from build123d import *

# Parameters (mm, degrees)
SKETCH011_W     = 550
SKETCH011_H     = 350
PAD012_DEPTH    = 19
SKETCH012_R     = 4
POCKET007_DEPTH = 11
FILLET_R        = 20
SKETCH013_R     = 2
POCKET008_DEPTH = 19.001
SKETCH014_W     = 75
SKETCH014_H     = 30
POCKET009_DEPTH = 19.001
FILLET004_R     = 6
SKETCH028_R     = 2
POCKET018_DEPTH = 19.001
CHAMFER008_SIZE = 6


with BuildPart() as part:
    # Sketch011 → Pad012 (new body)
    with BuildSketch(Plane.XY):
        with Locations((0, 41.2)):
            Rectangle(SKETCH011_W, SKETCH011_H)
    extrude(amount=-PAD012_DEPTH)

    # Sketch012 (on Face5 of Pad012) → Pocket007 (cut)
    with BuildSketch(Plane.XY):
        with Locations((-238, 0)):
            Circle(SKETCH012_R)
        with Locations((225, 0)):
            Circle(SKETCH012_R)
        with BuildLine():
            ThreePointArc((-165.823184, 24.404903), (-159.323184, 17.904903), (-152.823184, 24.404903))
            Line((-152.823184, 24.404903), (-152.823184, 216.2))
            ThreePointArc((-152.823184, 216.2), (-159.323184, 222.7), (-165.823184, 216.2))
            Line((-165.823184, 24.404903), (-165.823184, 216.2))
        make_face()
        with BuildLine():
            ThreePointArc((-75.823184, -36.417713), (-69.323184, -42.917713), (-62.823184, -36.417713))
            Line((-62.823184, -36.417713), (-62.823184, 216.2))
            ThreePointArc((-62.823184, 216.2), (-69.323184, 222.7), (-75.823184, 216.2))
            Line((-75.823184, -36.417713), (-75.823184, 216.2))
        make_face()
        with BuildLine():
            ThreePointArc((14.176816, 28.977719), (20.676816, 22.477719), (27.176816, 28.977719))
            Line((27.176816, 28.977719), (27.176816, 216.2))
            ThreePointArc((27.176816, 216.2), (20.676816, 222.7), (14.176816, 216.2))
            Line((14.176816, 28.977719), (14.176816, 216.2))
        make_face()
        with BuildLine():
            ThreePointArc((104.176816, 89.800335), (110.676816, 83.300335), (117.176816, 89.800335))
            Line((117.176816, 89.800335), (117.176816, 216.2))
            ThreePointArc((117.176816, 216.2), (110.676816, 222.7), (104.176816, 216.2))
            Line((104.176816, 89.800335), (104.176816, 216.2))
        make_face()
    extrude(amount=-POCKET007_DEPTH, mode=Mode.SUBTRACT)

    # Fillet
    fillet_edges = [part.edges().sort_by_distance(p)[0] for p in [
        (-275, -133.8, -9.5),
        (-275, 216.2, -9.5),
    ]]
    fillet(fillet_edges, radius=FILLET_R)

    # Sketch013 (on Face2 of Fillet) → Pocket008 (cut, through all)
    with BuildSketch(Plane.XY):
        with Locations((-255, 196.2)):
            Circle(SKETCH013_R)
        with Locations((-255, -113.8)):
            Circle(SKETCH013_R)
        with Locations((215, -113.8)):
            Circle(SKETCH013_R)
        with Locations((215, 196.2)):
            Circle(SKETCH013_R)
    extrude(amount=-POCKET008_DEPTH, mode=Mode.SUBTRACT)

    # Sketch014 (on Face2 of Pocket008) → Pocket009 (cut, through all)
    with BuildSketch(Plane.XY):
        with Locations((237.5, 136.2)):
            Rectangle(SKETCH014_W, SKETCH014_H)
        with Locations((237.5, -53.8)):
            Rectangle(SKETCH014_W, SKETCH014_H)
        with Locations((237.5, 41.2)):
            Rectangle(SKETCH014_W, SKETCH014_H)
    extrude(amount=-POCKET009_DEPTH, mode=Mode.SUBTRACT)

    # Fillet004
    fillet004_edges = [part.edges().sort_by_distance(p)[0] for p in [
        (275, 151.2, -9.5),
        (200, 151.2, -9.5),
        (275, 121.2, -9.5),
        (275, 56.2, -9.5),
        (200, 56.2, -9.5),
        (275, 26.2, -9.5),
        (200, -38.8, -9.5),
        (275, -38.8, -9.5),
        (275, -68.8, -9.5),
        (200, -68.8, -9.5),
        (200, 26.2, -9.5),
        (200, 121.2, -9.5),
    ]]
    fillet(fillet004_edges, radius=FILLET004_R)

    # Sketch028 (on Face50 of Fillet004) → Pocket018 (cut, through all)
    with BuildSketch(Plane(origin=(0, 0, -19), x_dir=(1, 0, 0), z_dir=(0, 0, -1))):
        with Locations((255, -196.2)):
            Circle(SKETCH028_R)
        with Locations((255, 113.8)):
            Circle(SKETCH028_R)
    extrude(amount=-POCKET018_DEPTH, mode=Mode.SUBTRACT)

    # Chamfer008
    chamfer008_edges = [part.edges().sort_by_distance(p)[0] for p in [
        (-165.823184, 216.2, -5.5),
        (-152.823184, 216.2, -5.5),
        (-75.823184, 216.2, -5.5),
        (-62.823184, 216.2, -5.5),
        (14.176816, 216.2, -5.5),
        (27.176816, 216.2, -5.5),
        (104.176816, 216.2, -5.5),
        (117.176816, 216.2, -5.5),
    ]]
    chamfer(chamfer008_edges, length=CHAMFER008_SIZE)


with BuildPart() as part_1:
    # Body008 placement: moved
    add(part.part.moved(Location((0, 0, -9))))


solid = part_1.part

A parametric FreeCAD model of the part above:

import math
import FreeCAD as App
import Part
import Sketcher
Q = App.Units.Quantity


def edges_at(feature, points):
    """Names of the edges that pass closest to the given points."""
    edges = feature.Shape.Edges
    near = lambda p: min(range(len(edges)), key=lambda i: edges[i].distToShape(Part.Vertex(*p))[0])
    return sorted({f"Edge{near(p) + 1}" for p in points})

doc = App.newDocument("Part")
body = doc.addObject("PartDesign::Body", "Body")

# Sketch on XY plane
sketch1 = body.newObject("Sketcher::SketchObject", "Sketch")
sketch1.AttachmentSupport = (doc.getObject("XY_Plane"), [""])
sketch1.MapMode = "FlatFace"
sketch1.addGeometry([
    Part.LineSegment(App.Vector(-275, 216, 0), App.Vector(-275, -134, 0)),
    Part.LineSegment(App.Vector(-275, -134, 0), App.Vector(275, -134, 0)),
    Part.LineSegment(App.Vector(275, -134, 0), App.Vector(275, 216, 0)),
    Part.LineSegment(App.Vector(275, 216, 0), App.Vector(-275, 216, 0)),
], False)
sketch1.addConstraint([
    Sketcher.Constraint("Coincident", 0, 2, 1, 1),
    Sketcher.Constraint("Coincident", 1, 2, 2, 1),
    Sketcher.Constraint("Coincident", 2, 2, 3, 1),
    Sketcher.Constraint("Coincident", 3, 2, 0, 1),
    Sketcher.Constraint("Vertical", 0),
    Sketcher.Constraint("Horizontal", 1),
    Sketcher.Constraint("Vertical", 2),
    Sketcher.Constraint("Horizontal", 3),
    Sketcher.Constraint("DistanceX", 1, 1, 1, 2, Q("550 mm")),
    Sketcher.Constraint("DistanceY", 0, 2, 0, 1, Q("350 mm")),
    Sketcher.Constraint("DistanceX", 0, 2, -1, 1, Q("275 mm")),
    Sketcher.Constraint("DistanceY", 0, 2, -1, 1, Q("133.8 mm")),
])
pad1 = body.newObject("PartDesign::Pad", "Pad")
pad1.Profile = sketch1
pad1.Length = 19
pad1.Reversed = True

# Sketch on XY plane
sketch2 = body.newObject("Sketcher::SketchObject", "Sketch001")
sketch2.AttachmentSupport = (doc.getObject("XY_Plane"), [""])
sketch2.MapMode = "FlatFace"
sketch2.addGeometry([
    Part.Circle(App.Vector(-238, 0, 0), App.Vector(0, 0, 1), 4),  # 0
    Part.Circle(App.Vector(225, 0, 0), App.Vector(0, 0, 1), 4),  # 1
    Part.ArcOfCircle(Part.Circle(App.Vector(-159.3, 24.4, 0), App.Vector(0, 0, 1), 6.5), math.radians(180), math.radians(360)),  # 2
    Part.LineSegment(App.Vector(-152.8, 24.4, 0), App.Vector(-152.8, 216.2, 0)),  # 3
    Part.ArcOfCircle(Part.Circle(App.Vector(-159.3, 216.2, 0), App.Vector(0, 0, 1), 6.5), math.radians(0), math.radians(180)),  # 4
    Part.LineSegment(App.Vector(-165.8, 216.2, 0), App.Vector(-165.8, 24.4, 0)),  # 5
    Part.ArcOfCircle(Part.Circle(App.Vector(-69.3, -36.4, 0), App.Vector(0, 0, 1), 6.5), math.radians(180), math.radians(360)),  # 6
    Part.LineSegment(App.Vector(-62.8, -36.4, 0), App.Vector(-62.8, 216.2, 0)),  # 7
    Part.ArcOfCircle(Part.Circle(App.Vector(-69.3, 216.2, 0), App.Vector(0, 0, 1), 6.5), math.radians(0), math.radians(180)),  # 8
    Part.LineSegment(App.Vector(-75.8, 216.2, 0), App.Vector(-75.8, -36.4, 0)),  # 9
    Part.ArcOfCircle(Part.Circle(App.Vector(20.7, 29, 0), App.Vector(0, 0, 1), 6.5), math.radians(180), math.radians(360)),  # 10
    Part.LineSegment(App.Vector(27.2, 29, 0), App.Vector(27.2, 216.2, 0)),  # 11
    Part.ArcOfCircle(Part.Circle(App.Vector(20.7, 216.2, 0), App.Vector(0, 0, 1), 6.5), math.radians(0), math.radians(180)),  # 12
    Part.LineSegment(App.Vector(14.2, 216.2, 0), App.Vector(14.2, 29, 0)),  # 13
    Part.ArcOfCircle(Part.Circle(App.Vector(110.7, 89.8, 0), App.Vector(0, 0, 1), 6.5), math.radians(180), math.radians(360)),  # 14
    Part.LineSegment(App.Vector(117.2, 89.8, 0), App.Vector(117.2, 216.2, 0)),  # 15
    Part.ArcOfCircle(Part.Circle(App.Vector(110.7, 216.2, 0), App.Vector(0, 0, 1), 6.5), math.radians(0), math.radians(180)),  # 16
    Part.LineSegment(App.Vector(104.2, 216.2, 0), App.Vector(104.2, 89.8, 0)),  # 17
], False)
sketch2.addConstraint([
    Sketcher.Constraint("Tangent", 2, 2, 3, 1),
    Sketcher.Constraint("Tangent", 3, 2, 4, 1),
    Sketcher.Constraint("Tangent", 4, 2, 5, 1),
    Sketcher.Constraint("Tangent", 5, 2, 2, 1),
    Sketcher.Constraint("Tangent", 6, 2, 7, 1),
    Sketcher.Constraint("Tangent", 7, 2, 8, 1),
    Sketcher.Constraint("Tangent", 8, 2, 9, 1),
    Sketcher.Constraint("Tangent", 9, 2, 6, 1),
    Sketcher.Constraint("Tangent", 10, 2, 11, 1),
    Sketcher.Constraint("Tangent", 11, 2, 12, 1),
    Sketcher.Constraint("Tangent", 12, 2, 13, 1),
    Sketcher.Constraint("Tangent", 13, 2, 10, 1),
    Sketcher.Constraint("Tangent", 14, 2, 15, 1),
    Sketcher.Constraint("Tangent", 15, 2, 16, 1),
    Sketcher.Constraint("Tangent", 16, 2, 17, 1),
    Sketcher.Constraint("Tangent", 17, 2, 14, 1),
    Sketcher.Constraint("Vertical", 3),
    Sketcher.Constraint("Vertical", 5),
    Sketcher.Constraint("Vertical", 7),
    Sketcher.Constraint("Vertical", 9),
    Sketcher.Constraint("Vertical", 11),
    Sketcher.Constraint("Vertical", 13),
    Sketcher.Constraint("Vertical", 15),
    Sketcher.Constraint("Vertical", 17),
    Sketcher.Constraint("Equal", 0, 1),
    Sketcher.Constraint("Equal", 4, 6),
    Sketcher.Constraint("Equal", 8, 10),
    Sketcher.Constraint("Equal", 12, 14),
    Sketcher.Constraint("PointOnObject", 0, 3, -1),
    Sketcher.Constraint("PointOnObject", 1, 3, -1),
    Sketcher.Constraint("Horizontal", 4, 3, 8, 3),
    Sketcher.Constraint("Horizontal", 8, 3, 12, 3),
    Sketcher.Constraint("Horizontal", 12, 3, 16, 3),
    Sketcher.Constraint("Diameter", 0, Q("8 mm")),
    Sketcher.Constraint("Radius", 2, Q("6.5 mm")),
    Sketcher.Constraint("DistanceX", 0, 3, -1, 1, Q("238 mm")),
    Sketcher.Constraint("DistanceX", -1, 1, 1, 3, Q("225 mm")),
    Sketcher.Constraint("DistanceX", 2, 3, 6, 3, Q("90 mm")),
    Sketcher.Constraint("DistanceX", 6, 3, 10, 3, Q("90 mm")),
    Sketcher.Constraint("DistanceX", 10, 3, 14, 3, Q("90 mm")),
    Sketcher.Constraint("DistanceY", -1, 1, 4, 3, Q("216.2 mm")),
    Sketcher.Constraint("DistanceY", 11, 1, 11, 2, Q("187.222281 mm")),
    Sketcher.Constraint("DistanceY", 3, 1, 3, 2, Q("191.795097 mm")),
    Sketcher.Constraint("DistanceY", 7, 1, 7, 2, Q("252.617713 mm")),
    Sketcher.Constraint("DistanceY", 15, 1, 15, 2, Q("126.399665 mm")),
    Sketcher.Constraint("DistanceX", 2, 3, -1, 1, Q("159.323184 mm")),
])
pocket1 = body.newObject("PartDesign::Pocket", "Pocket")
pocket1.Profile = sketch2
pocket1.Length = 11
doc.recompute()

fillet = body.newObject("PartDesign::Fillet", "Fillet")
fillet.Base = (pocket1, edges_at(pocket1, [(-275, -133.8, -9.5), (-275, 216.2, -9.5)]))
fillet.Radius = 20

# Sketch on XY plane
sketch3 = body.newObject("Sketcher::SketchObject", "Sketch002")
sketch3.AttachmentSupport = (doc.getObject("XY_Plane"), [""])
sketch3.MapMode = "FlatFace"
sketch3.addGeometry([
    Part.Circle(App.Vector(-255, 196.2, 0), App.Vector(0, 0, 1), 2),
    Part.Circle(App.Vector(-255, -113.8, 0), App.Vector(0, 0, 1), 2),
    Part.Circle(App.Vector(215, -113.8, 0), App.Vector(0, 0, 1), 2),
    Part.Circle(App.Vector(215, 196.2, 0), App.Vector(0, 0, 1), 2),
], False)
sketch3.addConstraint([
    Sketcher.Constraint("Equal", 0, 1),
    Sketcher.Constraint("Equal", 1, 2),
    Sketcher.Constraint("Equal", 2, 3),
    Sketcher.Constraint("Horizontal", 1, 3, 2, 3),
    Sketcher.Constraint("Horizontal", 0, 3, 3, 3),
    Sketcher.Constraint("Vertical", 0, 3, 1, 3),
    Sketcher.Constraint("Vertical", 2, 3, 3, 3),
    Sketcher.Constraint("Diameter", 0, Q("4 mm")),
    Sketcher.Constraint("DistanceX", 0, 3, -1, 1, Q("255 mm")),
    Sketcher.Constraint("DistanceX", -1, 1, 2, 3, Q("215 mm")),
    Sketcher.Constraint("DistanceY", 1, 3, 0, 3, Q("310 mm")),
    Sketcher.Constraint("DistanceY", -1, 1, 0, 3, Q("196.2 mm")),
])
pocket2 = body.newObject("PartDesign::Pocket", "Pocket001")
pocket2.Profile = sketch3
pocket2.Type = "ThroughAll"

# Sketch on XY plane
sketch4 = body.newObject("Sketcher::SketchObject", "Sketch003")
sketch4.AttachmentSupport = (doc.getObject("XY_Plane"), [""])
sketch4.MapMode = "FlatFace"
sketch4.addGeometry([
    Part.LineSegment(App.Vector(200, 151, 0), App.Vector(200, 121, 0)),  # 0
    Part.LineSegment(App.Vector(200, 121, 0), App.Vector(275, 121, 0)),  # 1
    Part.LineSegment(App.Vector(275, 121, 0), App.Vector(275, 151, 0)),  # 2
    Part.LineSegment(App.Vector(275, 151, 0), App.Vector(200, 151, 0)),  # 3
    Part.LineSegment(App.Vector(200, -39, 0), App.Vector(200, -69, 0)),  # 4
    Part.LineSegment(App.Vector(200, -69, 0), App.Vector(275, -69, 0)),  # 5
    Part.LineSegment(App.Vector(275, -69, 0), App.Vector(275, -39, 0)),  # 6
    Part.LineSegment(App.Vector(275, -39, 0), App.Vector(200, -39, 0)),  # 7
    Part.LineSegment(App.Vector(200, 56, 0), App.Vector(200, 26, 0)),  # 8
    Part.LineSegment(App.Vector(200, 26, 0), App.Vector(275, 26, 0)),  # 9
    Part.LineSegment(App.Vector(275, 26, 0), App.Vector(275, 56, 0)),  # 10
    Part.LineSegment(App.Vector(275, 56, 0), App.Vector(200, 56, 0)),  # 11
], False)
sketch4.addConstraint([
    Sketcher.Constraint("Coincident", 0, 2, 1, 1),
    Sketcher.Constraint("Coincident", 1, 2, 2, 1),
    Sketcher.Constraint("Coincident", 2, 2, 3, 1),
    Sketcher.Constraint("Coincident", 3, 2, 0, 1),
    Sketcher.Constraint("Coincident", 4, 2, 5, 1),
    Sketcher.Constraint("Coincident", 5, 2, 6, 1),
    Sketcher.Constraint("Coincident", 6, 2, 7, 1),
    Sketcher.Constraint("Coincident", 7, 2, 4, 1),
    Sketcher.Constraint("Coincident", 8, 2, 9, 1),
    Sketcher.Constraint("Coincident", 9, 2, 10, 1),
    Sketcher.Constraint("Coincident", 10, 2, 11, 1),
    Sketcher.Constraint("Coincident", 11, 2, 8, 1),
    Sketcher.Constraint("Vertical", 0),
    Sketcher.Constraint("Horizontal", 1),
    Sketcher.Constraint("Vertical", 2),
    Sketcher.Constraint("Horizontal", 3),
    Sketcher.Constraint("Vertical", 4),
    Sketcher.Constraint("Horizontal", 5),
    Sketcher.Constraint("Vertical", 6),
    Sketcher.Constraint("Horizontal", 7),
    Sketcher.Constraint("Vertical", 8),
    Sketcher.Constraint("Horizontal", 9),
    Sketcher.Constraint("Vertical", 10),
    Sketcher.Constraint("Horizontal", 11),
    Sketcher.Constraint("Vertical", 3, 2, 4, 2),
    Sketcher.Constraint("Vertical", 2, 2, 5, 2),
    Sketcher.Constraint("Vertical", 7, 2, 8, 2),
    Sketcher.Constraint("Vertical", 6, 2, 9, 2),
    Sketcher.Constraint("Equal", 2, 4),
    Sketcher.Constraint("Equal", 6, 8),
    Sketcher.Constraint("DistanceX", 1, 1, 1, 2, Q("75 mm")),
    Sketcher.Constraint("DistanceY", 0, 2, 0, 1, Q("30 mm")),
    Sketcher.Constraint("DistanceX", -1, 1, 0, 2, Q("200 mm")),
    Sketcher.Constraint("DistanceY", 4, 2, 0, 2, Q("190 mm")),
    Sketcher.Constraint("DistanceY", 7, 2, 8, 2, Q("65 mm")),
    Sketcher.Constraint("DistanceY", -1, 1, 0, 2, Q("121.2 mm")),
])
pocket3 = body.newObject("PartDesign::Pocket", "Pocket002")
pocket3.Profile = sketch4
pocket3.Type = "ThroughAll"
doc.recompute()

fillet2 = body.newObject("PartDesign::Fillet", "Fillet001")
fillet2.Base = (pocket3, edges_at(pocket3, [
    (275, 151.2, -9.5),
    (200, 151.2, -9.5),
    (275, 121.2, -9.5),
    (275, 56.2, -9.5),
    (200, 56.2, -9.5),
    (275, 26.2, -9.5),
    (200, -38.8, -9.5),
    (275, -38.8, -9.5),
    (275, -68.8, -9.5),
    (200, -68.8, -9.5),
    (200, 26.2, -9.5),
    (200, 121.2, -9.5),
]))
fillet2.Radius = 6

# Sketch on XY plane
sketch5 = body.newObject("Sketcher::SketchObject", "Sketch004")
sketch5.AttachmentSupport = (doc.getObject("XY_Plane"), [""])
sketch5.MapMode = "FlatFace"
sketch5.AttachmentOffset = App.Placement(App.Vector(0, 0, -19), App.Rotation())
sketch5.addGeometry([
    Part.Circle(App.Vector(255, 196.2, 0), App.Vector(0, 0, 1), 2),
    Part.Circle(App.Vector(255, -113.8, 0), App.Vector(0, 0, 1), 2),
], False)
sketch5.addConstraint([
    Sketcher.Constraint("Equal", 0, 1),
    Sketcher.Constraint("Vertical", 0, 3, 1, 3),
    Sketcher.Constraint("Diameter", 0, Q("4 mm")),
    Sketcher.Constraint("DistanceX", -1, 1, 0, 3, Q("255 mm")),
    Sketcher.Constraint("DistanceY", 1, 3, 0, 3, Q("310 mm")),
    Sketcher.Constraint("DistanceY", -1, 1, 0, 3, Q("196.2 mm")),
])
pocket4 = body.newObject("PartDesign::Pocket", "Pocket003")
pocket4.Profile = sketch5
pocket4.Type = "ThroughAll"
pocket4.Reversed = True
doc.recompute()

chamfer = body.newObject("PartDesign::Chamfer", "Chamfer")
chamfer.Base = (pocket4, edges_at(pocket4, [
    (-165.823, 216.2, -5.5),
    (-152.823, 216.2, -5.5),
    (-75.823, 216.2, -5.5),
    (-62.823, 216.2, -5.5),
    (14.177, 216.2, -5.5),
    (27.177, 216.2, -5.5),
    (104.177, 216.2, -5.5),
    (117.177, 216.2, -5.5),
]))
chamfer.Size = 6
body2 = doc.addObject("PartDesign::Body", "Body001")
doc.recompute()

body.Placement = App.Placement(App.Vector(0, 0, -9), App.Rotation(App.Vector(0, 0, 1), 0))
boolean = body2.newObject("PartDesign::Boolean", "Boolean")
boolean.Type = "Fuse"
boolean.addObjects([body])

doc.recompute()
